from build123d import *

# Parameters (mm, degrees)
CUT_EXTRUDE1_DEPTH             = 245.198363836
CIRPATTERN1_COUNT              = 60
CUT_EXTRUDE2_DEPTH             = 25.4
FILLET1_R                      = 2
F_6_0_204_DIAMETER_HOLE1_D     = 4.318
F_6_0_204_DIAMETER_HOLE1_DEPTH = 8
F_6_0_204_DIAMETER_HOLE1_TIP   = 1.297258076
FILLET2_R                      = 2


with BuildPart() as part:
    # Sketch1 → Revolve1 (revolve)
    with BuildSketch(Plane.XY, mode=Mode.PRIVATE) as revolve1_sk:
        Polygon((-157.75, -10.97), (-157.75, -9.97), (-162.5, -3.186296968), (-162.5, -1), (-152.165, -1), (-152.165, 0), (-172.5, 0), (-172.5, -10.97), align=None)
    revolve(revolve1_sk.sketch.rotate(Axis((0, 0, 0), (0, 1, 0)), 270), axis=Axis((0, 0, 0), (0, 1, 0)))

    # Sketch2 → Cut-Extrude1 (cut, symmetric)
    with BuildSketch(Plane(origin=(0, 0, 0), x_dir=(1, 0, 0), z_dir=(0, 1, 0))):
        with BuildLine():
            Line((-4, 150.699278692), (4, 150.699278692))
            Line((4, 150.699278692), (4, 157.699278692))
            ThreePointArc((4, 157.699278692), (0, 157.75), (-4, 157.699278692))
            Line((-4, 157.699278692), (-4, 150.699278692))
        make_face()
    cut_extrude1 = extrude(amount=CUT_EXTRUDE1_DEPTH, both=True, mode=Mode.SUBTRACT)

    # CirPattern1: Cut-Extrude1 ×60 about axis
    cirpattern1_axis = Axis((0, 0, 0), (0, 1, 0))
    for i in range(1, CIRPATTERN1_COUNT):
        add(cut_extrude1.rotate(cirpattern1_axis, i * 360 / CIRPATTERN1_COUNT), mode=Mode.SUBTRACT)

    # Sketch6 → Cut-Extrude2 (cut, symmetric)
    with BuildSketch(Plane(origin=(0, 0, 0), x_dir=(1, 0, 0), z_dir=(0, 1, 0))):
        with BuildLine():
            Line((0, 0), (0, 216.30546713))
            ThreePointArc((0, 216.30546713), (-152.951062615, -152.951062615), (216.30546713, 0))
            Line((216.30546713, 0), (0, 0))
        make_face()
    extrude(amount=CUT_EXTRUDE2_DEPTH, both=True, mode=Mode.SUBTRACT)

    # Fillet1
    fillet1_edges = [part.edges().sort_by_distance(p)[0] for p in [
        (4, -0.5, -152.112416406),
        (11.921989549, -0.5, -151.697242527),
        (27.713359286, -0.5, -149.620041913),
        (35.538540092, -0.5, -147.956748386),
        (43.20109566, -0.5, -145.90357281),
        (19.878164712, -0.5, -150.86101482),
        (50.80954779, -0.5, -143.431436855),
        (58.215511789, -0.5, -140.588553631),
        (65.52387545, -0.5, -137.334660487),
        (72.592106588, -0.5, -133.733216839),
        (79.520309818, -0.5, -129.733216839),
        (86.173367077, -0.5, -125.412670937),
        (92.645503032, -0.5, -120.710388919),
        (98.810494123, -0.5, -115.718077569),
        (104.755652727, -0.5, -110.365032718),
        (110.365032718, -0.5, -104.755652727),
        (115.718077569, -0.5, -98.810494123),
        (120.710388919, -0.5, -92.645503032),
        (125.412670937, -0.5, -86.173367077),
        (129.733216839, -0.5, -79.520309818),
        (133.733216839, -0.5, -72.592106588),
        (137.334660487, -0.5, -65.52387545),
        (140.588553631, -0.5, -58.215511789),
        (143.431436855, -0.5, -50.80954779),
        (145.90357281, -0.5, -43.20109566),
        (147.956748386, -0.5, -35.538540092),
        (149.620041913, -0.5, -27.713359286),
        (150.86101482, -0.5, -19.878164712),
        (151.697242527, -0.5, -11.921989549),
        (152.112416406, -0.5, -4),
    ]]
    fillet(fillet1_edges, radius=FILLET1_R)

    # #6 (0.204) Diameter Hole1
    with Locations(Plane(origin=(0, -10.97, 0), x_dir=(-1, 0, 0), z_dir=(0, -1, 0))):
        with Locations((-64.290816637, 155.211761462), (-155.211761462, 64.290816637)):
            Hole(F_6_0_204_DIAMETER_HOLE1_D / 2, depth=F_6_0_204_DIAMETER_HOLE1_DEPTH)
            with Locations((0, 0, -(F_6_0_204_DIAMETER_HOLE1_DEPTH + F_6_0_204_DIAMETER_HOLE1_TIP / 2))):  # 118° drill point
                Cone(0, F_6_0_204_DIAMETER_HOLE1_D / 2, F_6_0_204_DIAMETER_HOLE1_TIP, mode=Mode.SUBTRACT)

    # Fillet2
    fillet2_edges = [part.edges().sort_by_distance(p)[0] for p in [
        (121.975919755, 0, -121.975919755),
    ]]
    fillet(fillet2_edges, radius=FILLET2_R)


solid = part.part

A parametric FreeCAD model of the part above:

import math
import FreeCAD as App
import Part
import Sketcher
from FreeCAD import Vector
Q = App.Units.Quantity


def edges_at(feature, points):
    """Names of the edges that pass closest to the given points."""
    edges = feature.Shape.Edges
    near = lambda p: min(range(len(edges)), key=lambda i: edges[i].distToShape(Part.Vertex(*p))[0])
    return sorted({f"Edge{near(p) + 1}" for p in points})

doc = App.newDocument("Part")
body = doc.addObject("PartDesign::Body", "Body")

sketch1 = body.newObject("Sketcher::SketchObject", "Sketch")
sketch1.AttachmentSupport = (doc.getObject("XY_Plane"), [""])
sketch1.MapMode = "FlatFace"
sketch1.addGeometry(Part.LineSegment(Vector(-157.8, -11, 0), Vector(-157.8, -10, 0)), False)
sketch1.addGeometry(Part.LineSegment(Vector(-157.8, -10, 0), Vector(-162.5, -3.2, 0)), False)
sketch1.addGeometry(Part.LineSegment(Vector(-162.5, -3.2, 0), Vector(-162.5, -1, 0)), False)
sketch1.addGeometry(Part.LineSegment(Vector(-162.5, -1, 0), Vector(-152.2, -1, 0)), False)
sketch1.addGeometry(Part.LineSegment(Vector(-152.2, -1, 0), Vector(-152.2, 0, 0)), False)
sketch1.addGeometry(Part.LineSegment(Vector(-152.2, 0, 0), Vector(-172.5, 0, 0)), False)
sketch1.addGeometry(Part.LineSegment(Vector(-172.5, 0, 0), Vector(-172.5, -11, 0)), False)
sketch1.addGeometry(Part.LineSegment(Vector(-172.5, -11, 0), Vector(-157.8, -11, 0)), False)
sketch1.addConstraint(Sketcher.Constraint("Coincident", 0, 2, 1, 1))
sketch1.addConstraint(Sketcher.Constraint("Coincident", 1, 2, 2, 1))
sketch1.addConstraint(Sketcher.Constraint("Coincident", 2, 2, 3, 1))
sketch1.addConstraint(Sketcher.Constraint("Coincident", 3, 2, 4, 1))
sketch1.addConstraint(Sketcher.Constraint("Coincident", 4, 2, 5, 1))
sketch1.addConstraint(Sketcher.Constraint("Coincident", 5, 2, 6, 1))
sketch1.addConstraint(Sketcher.Constraint("Coincident", 6, 2, 7, 1))
sketch1.addConstraint(Sketcher.Constraint("Coincident", 7, 2, 0, 1))
sketch1.addConstraint(Sketcher.Constraint("Vertical", 0))
sketch1.addConstraint(Sketcher.Constraint("Vertical", 2))
sketch1.addConstraint(Sketcher.Constraint("Horizontal", 3))
sketch1.addConstraint(Sketcher.Constraint("Vertical", 4))
sketch1.addConstraint(Sketcher.Constraint("Horizontal", 5))
sketch1.addConstraint(Sketcher.Constraint("Vertical", 6))
sketch1.addConstraint(Sketcher.Constraint("Horizontal", 7))
sketch1.addConstraint(Sketcher.Constraint("PointOnObject", 4, 2, -1))
sketch1.addConstraint(Sketcher.Constraint("Equal", 0, 4))
sketch1.addConstraint(Sketcher.Constraint("DistanceY", 0, 1, 0, 2, 1.0))
sketch1.addConstraint(Sketcher.Constraint("Angle", 1, Q("125 deg")))
sketch1.addConstraint(Sketcher.Constraint("DistanceX", 5, 2, 2, 2, 10.0))
sketch1.addConstraint(Sketcher.Constraint("DistanceX", 7, 1, 7, 2, 14.75))
sketch1.addConstraint(Sketcher.Constraint("DistanceY", 6, 2, 6, 1, 10.97))
sketch1.addConstraint(Sketcher.Constraint("DistanceX", 1, 2, -1, 1, 162.5))
sketch1.addConstraint(Sketcher.Constraint("DistanceX", 3, 1, 3, 2, 10.335))
revolution = body.newObject("PartDesign::Revolution", "Revolution")
revolution.Profile = sketch1
revolution.ReferenceAxis = (sketch1, ["V_Axis"])
revolution.Angle = 360

sketch2 = body.newObject("Sketcher::SketchObject", "Sketch001")
sketch2.AttachmentSupport = (doc.getObject("XZ_Plane"), [""])
sketch2.MapMode = "FlatFace"
sketch2.addGeometry(Part.LineSegment(Vector(-4, -151, 0), Vector(4, -151, 0)), False)
sketch2.addGeometry(Part.LineSegment(Vector(4, -151, 0), Vector(4, -158, 0)), False)
sketch2.addGeometry(Part.ArcOfCircle(Part.Circle(Vector(0, 0, 0), Vector(0, 0, 1), 158), math.radians(-91.45), math.radians(-88.55)), False)
sketch2.addGeometry(Part.LineSegment(Vector(-4, -158, 0), Vector(-4, -151, 0)), False)
sketch2.addConstraint(Sketcher.Constraint("Coincident", 0, 2, 1, 1))
sketch2.addConstraint(Sketcher.Constraint("Coincident", 1, 2, 2, 2))
sketch2.addConstraint(Sketcher.Constraint("Coincident", 2, 1, 3, 1))
sketch2.addConstraint(Sketcher.Constraint("Coincident", 3, 2, 0, 1))
sketch2.addConstraint(Sketcher.Constraint("Horizontal", 0))
sketch2.addConstraint(Sketcher.Constraint("Vertical", 1))
sketch2.addConstraint(Sketcher.Constraint("Vertical", 3))
sketch2.addConstraint(Sketcher.Constraint("Coincident", 2, 3, -1, 1))
sketch2.addConstraint(Sketcher.Constraint("Horizontal", 1, 2, 2, 1))
sketch2.addConstraint(Sketcher.Constraint("DistanceX", 0, 1, 0, 2, 8.0))
sketch2.addConstraint(Sketcher.Constraint("DistanceY", 1, 2, 1, 1, 7.0))
sketch2.addConstraint(Sketcher.Constraint("Radius", 2, 157.75))
pocket1 = body.newObject("PartDesign::Pocket", "Pocket")
pocket1.Profile = sketch2
pocket1.Length = 490.396728
pocket1.Midplane = True
doc.recompute()

polarpattern = body.newObject("PartDesign::PolarPattern", "PolarPattern")
polarpattern.Originals = [pocket1]
polarpattern.Axis = (doc.getObject("Y_Axis"), [""])
polarpattern.Angle = 360
polarpattern.Occurrences = 60
body.Tip = polarpattern

sketch3 = body.newObject("Sketcher::SketchObject", "Sketch002")
sketch3.AttachmentSupport = (doc.getObject("XZ_Plane"), [""])
sketch3.MapMode = "FlatFace"
sketch3.addGeometry(Part.LineSegment(Vector(0, 0, 0), Vector(0, -216, 0)), False)
sketch3.addGeometry(Part.ArcOfCircle(Part.Circle(Vector(0, 0, 0), Vector(0, 0, 1), 216), math.radians(0), math.radians(270)), False)
sketch3.addGeometry(Part.LineSegment(Vector(216, 0, 0), Vector(0, 0, 0)), False)
sketch3.addConstraint(Sketcher.Constraint("Coincident", 0, 2, 1, 2))
sketch3.addConstraint(Sketcher.Constraint("Coincident", 1, 1, 2, 1))
sketch3.addConstraint(Sketcher.Constraint("Coincident", 2, 2, 0, 1))
sketch3.addConstraint(Sketcher.Constraint("Vertical", 0))
sketch3.addConstraint(Sketcher.Constraint("Horizontal", 2))
sketch3.addConstraint(Sketcher.Constraint("Coincident", 1, 3, -1, 1))
sketch3.addConstraint(Sketcher.Constraint("Coincident", 2, 2, -1, 1))
sketch3.addConstraint(Sketcher.Constraint("Radius", 1, 216.305467))
pocket2 = body.newObject("PartDesign::Pocket", "Pocket001")
pocket2.Profile = sketch3
pocket2.Length = 50.8
pocket2.Midplane = True
doc.recompute()

fillet = body.newObject("PartDesign::Fillet", "Fillet")
fillet.Base = (pocket2, edges_at(pocket2, [
    (4, -0.5, -152.112),
    (11.922, -0.5, -151.697),
    (27.713, -0.5, -149.62),
    (35.539, -0.5, -147.957),
    (43.201, -0.5, -145.904),
    (19.878, -0.5, -150.861),
    (50.81, -0.5, -143.431),
    (58.216, -0.5, -140.589),
    (65.524, -0.5, -137.335),
    (72.592, -0.5, -133.733),
    (79.52, -0.5, -129.733),
    (86.173, -0.5, -125.413),
    (92.646, -0.5, -120.71),
    (98.81, -0.5, -115.718),
    (104.756, -0.5, -110.365),
    (110.365, -0.5, -104.756),
    (115.718, -0.5, -98.81),
    (120.71, -0.5, -92.646),
    (125.413, -0.5, -86.173),
    (129.733, -0.5, -79.52),
    (133.733, -0.5, -72.592),
    (137.335, -0.5, -65.524),
    (140.589, -0.5, -58.216),
    (143.431, -0.5, -50.81),
    (145.904, -0.5, -43.201),
    (147.957, -0.5, -35.539),
    (149.62, -0.5, -27.713),
    (150.861, -0.5, -19.878),
    (151.697, -0.5, -11.922),
    (152.112, -0.5, -4),
]))
fillet.Radius = 2

sketch4 = body.newObject("Sketcher::SketchObject", "Sketch003")
sketch4.AttachmentSupport = (doc.getObject("XZ_Plane"), [""])
sketch4.MapMode = "FlatFace"
sketch4.AttachmentOffset = App.Placement(Vector(0, 0, 10.97), App.Rotation())
sketch4.addGeometry(Part.Circle(Vector(64.3, -155.2, 0), Vector(0, 0, 1), 2.2), False)
sketch4.addGeometry(Part.Circle(Vector(155.2, -64.3, 0), Vector(0, 0, 1), 2.2), False)
sketch4.addConstraint(Sketcher.Constraint("Equal", 0, 1))
sketch4.addConstraint(Sketcher.Constraint("Diameter", 0, 4.318))
sketch4.addConstraint(Sketcher.Constraint("DistanceY", 0, 3, -1, 1, 155.211761))
sketch4.addConstraint(Sketcher.Constraint("DistanceX", -1, 1, 1, 3, 155.211761))
sketch4.addConstraint(Sketcher.Constraint("DistanceX", -1, 1, 0, 3, 64.290817))
sketch4.addConstraint(Sketcher.Constraint("DistanceY", 1, 3, -1, 1, 64.290817))
doc.recompute()
hole = body.newObject("PartDesign::Hole", "Hole")
hole.Profile = sketch4
hole.ThreadType = "None"
hole.Diameter = 4.318
hole.DepthType = "Dimension"
hole.Depth = 8
hole.DrillPoint = "Angled"
hole.DrillPointAngle = 118
doc.recompute()

fillet2 = body.newObject("PartDesign::Fillet", "Fillet001")
fillet2.Base = (hole, edges_at(hole, [(121.976, 0, -121.976)]))
fillet2.Radius = 2

doc.recompute()
